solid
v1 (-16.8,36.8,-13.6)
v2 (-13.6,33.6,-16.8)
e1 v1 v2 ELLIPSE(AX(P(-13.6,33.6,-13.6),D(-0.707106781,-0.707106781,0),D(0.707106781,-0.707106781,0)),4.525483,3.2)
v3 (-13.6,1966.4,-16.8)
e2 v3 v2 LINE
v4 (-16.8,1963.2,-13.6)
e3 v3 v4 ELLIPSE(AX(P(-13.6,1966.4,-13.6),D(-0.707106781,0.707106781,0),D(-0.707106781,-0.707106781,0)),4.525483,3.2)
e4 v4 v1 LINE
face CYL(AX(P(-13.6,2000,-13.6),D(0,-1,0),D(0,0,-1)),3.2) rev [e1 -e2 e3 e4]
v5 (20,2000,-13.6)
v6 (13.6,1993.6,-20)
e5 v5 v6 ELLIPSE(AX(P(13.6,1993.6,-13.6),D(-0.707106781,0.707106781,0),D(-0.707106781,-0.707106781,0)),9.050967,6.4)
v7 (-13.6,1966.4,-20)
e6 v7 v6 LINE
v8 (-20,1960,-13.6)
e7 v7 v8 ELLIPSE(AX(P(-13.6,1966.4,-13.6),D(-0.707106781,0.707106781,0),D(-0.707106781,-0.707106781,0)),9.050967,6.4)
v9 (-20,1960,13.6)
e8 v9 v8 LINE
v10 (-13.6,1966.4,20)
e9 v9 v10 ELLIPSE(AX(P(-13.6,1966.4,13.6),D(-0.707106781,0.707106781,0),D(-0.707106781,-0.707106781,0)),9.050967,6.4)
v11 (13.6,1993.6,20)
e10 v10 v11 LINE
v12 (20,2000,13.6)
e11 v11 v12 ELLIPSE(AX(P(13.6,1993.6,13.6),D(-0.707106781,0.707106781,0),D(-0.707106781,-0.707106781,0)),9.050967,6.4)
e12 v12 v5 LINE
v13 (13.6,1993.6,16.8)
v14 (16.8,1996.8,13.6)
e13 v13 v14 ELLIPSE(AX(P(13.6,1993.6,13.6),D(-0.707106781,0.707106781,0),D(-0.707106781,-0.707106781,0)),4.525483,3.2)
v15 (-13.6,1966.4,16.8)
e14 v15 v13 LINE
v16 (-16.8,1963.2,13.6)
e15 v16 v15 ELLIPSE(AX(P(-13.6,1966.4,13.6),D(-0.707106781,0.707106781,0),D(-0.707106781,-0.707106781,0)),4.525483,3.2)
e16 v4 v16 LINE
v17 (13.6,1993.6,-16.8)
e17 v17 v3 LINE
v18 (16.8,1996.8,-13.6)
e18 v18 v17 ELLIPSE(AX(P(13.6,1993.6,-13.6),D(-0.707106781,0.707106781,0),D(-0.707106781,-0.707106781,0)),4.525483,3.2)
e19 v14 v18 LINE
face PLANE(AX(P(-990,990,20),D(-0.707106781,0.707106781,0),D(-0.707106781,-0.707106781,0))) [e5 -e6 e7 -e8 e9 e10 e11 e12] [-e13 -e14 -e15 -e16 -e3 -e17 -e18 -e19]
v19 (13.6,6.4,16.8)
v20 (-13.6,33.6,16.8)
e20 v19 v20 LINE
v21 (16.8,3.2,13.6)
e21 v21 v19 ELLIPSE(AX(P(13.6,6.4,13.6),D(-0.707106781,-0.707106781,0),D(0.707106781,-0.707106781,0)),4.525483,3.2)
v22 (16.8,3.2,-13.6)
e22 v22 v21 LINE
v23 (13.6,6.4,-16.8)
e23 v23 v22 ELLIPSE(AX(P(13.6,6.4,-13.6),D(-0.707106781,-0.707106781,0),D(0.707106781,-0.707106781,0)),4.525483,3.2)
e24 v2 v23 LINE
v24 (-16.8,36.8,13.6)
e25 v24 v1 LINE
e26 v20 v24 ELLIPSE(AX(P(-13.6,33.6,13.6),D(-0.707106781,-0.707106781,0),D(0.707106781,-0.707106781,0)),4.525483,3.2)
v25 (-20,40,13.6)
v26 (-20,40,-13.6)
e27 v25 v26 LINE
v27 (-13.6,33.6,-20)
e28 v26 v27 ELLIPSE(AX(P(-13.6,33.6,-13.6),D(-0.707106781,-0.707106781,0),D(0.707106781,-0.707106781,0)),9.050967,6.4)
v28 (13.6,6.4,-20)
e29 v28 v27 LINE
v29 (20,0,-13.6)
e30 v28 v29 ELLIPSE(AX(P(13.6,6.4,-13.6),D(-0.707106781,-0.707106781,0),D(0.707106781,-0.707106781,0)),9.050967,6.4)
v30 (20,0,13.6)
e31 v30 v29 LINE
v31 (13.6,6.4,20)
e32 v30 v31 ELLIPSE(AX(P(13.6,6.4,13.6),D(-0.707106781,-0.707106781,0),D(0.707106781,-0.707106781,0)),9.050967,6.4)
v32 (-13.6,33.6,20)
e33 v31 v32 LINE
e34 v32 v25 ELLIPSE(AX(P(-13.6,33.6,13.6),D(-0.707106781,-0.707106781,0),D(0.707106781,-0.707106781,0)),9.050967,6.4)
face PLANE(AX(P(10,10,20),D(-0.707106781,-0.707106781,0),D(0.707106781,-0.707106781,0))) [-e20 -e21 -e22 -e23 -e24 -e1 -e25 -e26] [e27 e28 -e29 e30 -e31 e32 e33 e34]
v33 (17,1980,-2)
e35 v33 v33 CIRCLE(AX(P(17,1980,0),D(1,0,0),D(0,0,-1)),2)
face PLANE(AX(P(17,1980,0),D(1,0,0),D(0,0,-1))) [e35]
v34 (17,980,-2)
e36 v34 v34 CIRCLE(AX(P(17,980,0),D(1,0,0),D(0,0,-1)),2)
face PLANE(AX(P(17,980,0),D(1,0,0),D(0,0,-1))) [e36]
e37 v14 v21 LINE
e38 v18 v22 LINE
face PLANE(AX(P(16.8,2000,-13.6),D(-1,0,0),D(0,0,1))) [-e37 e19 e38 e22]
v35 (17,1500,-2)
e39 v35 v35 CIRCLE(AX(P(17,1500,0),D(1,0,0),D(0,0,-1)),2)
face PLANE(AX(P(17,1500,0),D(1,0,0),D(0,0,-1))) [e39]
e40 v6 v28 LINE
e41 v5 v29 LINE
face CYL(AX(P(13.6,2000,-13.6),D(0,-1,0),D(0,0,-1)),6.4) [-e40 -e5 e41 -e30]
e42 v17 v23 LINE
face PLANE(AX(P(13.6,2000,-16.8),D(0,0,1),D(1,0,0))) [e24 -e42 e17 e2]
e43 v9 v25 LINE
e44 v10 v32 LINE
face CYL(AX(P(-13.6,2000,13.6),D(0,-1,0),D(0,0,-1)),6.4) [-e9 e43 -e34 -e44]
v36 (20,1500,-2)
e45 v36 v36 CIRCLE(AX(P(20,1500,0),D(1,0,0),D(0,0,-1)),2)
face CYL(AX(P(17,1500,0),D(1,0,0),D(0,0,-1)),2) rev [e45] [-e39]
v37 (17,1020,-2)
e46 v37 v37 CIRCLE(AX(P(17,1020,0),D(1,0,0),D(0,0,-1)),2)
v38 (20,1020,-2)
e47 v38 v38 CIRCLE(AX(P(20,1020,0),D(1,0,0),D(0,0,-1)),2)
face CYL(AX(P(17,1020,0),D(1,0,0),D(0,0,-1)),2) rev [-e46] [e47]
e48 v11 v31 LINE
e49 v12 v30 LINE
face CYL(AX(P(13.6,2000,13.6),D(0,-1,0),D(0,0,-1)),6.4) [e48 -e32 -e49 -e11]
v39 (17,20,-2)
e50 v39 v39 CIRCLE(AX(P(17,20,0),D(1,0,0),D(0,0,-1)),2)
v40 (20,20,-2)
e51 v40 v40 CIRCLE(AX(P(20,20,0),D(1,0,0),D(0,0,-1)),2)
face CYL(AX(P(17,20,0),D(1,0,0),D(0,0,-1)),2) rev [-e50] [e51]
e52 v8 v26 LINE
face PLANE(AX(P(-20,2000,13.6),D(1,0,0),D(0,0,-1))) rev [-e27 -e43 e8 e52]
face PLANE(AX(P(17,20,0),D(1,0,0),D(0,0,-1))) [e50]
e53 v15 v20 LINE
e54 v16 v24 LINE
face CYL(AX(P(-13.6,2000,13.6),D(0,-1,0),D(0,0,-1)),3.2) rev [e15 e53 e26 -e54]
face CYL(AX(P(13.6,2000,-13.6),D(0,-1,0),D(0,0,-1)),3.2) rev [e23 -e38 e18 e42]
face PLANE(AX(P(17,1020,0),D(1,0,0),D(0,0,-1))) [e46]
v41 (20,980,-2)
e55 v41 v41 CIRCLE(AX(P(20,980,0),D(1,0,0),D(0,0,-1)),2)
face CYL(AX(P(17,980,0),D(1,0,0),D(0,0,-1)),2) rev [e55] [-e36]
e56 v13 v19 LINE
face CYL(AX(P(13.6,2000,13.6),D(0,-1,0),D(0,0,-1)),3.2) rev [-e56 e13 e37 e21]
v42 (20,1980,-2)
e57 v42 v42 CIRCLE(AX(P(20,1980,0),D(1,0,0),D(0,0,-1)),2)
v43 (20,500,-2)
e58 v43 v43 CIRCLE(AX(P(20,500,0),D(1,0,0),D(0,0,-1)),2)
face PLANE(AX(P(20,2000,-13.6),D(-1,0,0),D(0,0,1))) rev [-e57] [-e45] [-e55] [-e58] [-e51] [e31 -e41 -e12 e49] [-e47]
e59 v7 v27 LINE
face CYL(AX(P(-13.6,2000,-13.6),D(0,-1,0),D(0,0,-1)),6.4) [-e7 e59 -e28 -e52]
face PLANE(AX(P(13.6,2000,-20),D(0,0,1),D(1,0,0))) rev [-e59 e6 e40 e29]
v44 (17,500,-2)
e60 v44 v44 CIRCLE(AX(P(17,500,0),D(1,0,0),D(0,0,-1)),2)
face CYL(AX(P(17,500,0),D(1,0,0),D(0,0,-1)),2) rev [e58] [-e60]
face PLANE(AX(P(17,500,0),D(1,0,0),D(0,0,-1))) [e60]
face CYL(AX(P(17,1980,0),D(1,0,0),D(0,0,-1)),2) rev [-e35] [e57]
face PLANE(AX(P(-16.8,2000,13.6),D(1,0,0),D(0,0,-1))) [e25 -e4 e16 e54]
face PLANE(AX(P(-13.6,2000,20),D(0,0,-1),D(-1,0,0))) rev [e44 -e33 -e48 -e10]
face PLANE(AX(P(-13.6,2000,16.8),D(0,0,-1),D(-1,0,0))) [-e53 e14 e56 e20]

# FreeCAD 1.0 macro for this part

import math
import FreeCAD as App
import Part
import Sketcher

V = App.Vector

doc = App.newDocument("Part")
body = doc.addObject("PartDesign::Body", "Body")

sketch1 = body.newObject("Sketcher::SketchObject", "Sketch")
sketch1.AttachmentSupport = (doc.getObject("XZ_Plane"), [""])
sketch1.MapMode = "FlatFace"
sketch1.addGeometry(Part.LineSegment(V(13.6, -20, 0), V(-13.6, -20, 0)), False)
sketch1.addGeometry(Part.ArcOfCircle(Part.Circle(V(-13.6, -13.6, 0), V(0, 0, 1), 6.4), math.radians(180), math.radians(270)), False)
sketch1.addGeometry(Part.LineSegment(V(-20, -13.6, 0), V(-20, 13.6, 0)), False)
sketch1.addGeometry(Part.ArcOfCircle(Part.Circle(V(-13.6, 13.6, 0), V(0, 0, 1), 6.4), math.radians(90), math.radians(180)), False)
sketch1.addGeometry(Part.LineSegment(V(-13.6, 20, 0), V(13.6, 20, 0)), False)
sketch1.addGeometry(Part.ArcOfCircle(Part.Circle(V(13.6, 13.6, 0), V(0, 0, 1), 6.4), math.radians(0), math.radians(90)), False)
sketch1.addGeometry(Part.LineSegment(V(20, 13.6, 0), V(20, -13.6, 0)), False)
sketch1.addGeometry(Part.ArcOfCircle(Part.Circle(V(13.6, -13.6, 0), V(0, 0, 1), 6.4), math.radians(-90), math.radians(0)), False)
sketch1.addGeometry(Part.LineSegment(V(-13.6, -16.8, 0), V(13.6, -16.8, 0)), False)
sketch1.addGeometry(Part.ArcOfCircle(Part.Circle(V(13.6, -13.6, 0), V(0, 0, 1), 3.2), math.radians(-90), math.radians(0)), False)
sketch1.addGeometry(Part.LineSegment(V(16.8, -13.6, 0), V(16.8, 13.6, 0)), False)
sketch1.addGeometry(Part.ArcOfCircle(Part.Circle(V(13.6, 13.6, 0), V(0, 0, 1), 3.2), math.radians(0), math.radians(90)), False)
sketch1.addGeometry(Part.LineSegment(V(13.6, 16.8, 0), V(-13.6, 16.8, 0)), False)
sketch1.addGeometry(Part.ArcOfCircle(Part.Circle(V(-13.6, 13.6, 0), V(0, 0, 1), 3.2), math.radians(90), math.radians(180)), False)
sketch1.addGeometry(Part.LineSegment(V(-16.8, 13.6, 0), V(-16.8, -13.6, 0)), False)
sketch1.addGeometry(Part.ArcOfCircle(Part.Circle(V(-13.6, -13.6, 0), V(0, 0, 1), 3.2), math.radians(180), math.radians(270)), False)
sketch1.addConstraint(Sketcher.Constraint("Tangent", 0, 2, 1, 2))
sketch1.addConstraint(Sketcher.Constraint("Tangent", 1, 1, 2, 1))
sketch1.addConstraint(Sketcher.Constraint("Tangent", 2, 2, 3, 2))
sketch1.addConstraint(Sketcher.Constraint("Tangent", 3, 1, 4, 1))
sketch1.addConstraint(Sketcher.Constraint("Tangent", 4, 2, 5, 2))
sketch1.addConstraint(Sketcher.Constraint("Tangent", 5, 1, 6, 1))
sketch1.addConstraint(Sketcher.Constraint("Tangent", 6, 2, 7, 2))
sketch1.addConstraint(Sketcher.Constraint("Tangent", 7, 1, 0, 1))
sketch1.addConstraint(Sketcher.Constraint("Tangent", 8, 2, 9, 1))
sketch1.addConstraint(Sketcher.Constraint("Tangent", 9, 2, 10, 1))
sketch1.addConstraint(Sketcher.Constraint("Tangent", 10, 2, 11, 1))
sketch1.addConstraint(Sketcher.Constraint("Tangent", 11, 2, 12, 1))
sketch1.addConstraint(Sketcher.Constraint("Tangent", 12, 2, 13, 1))
sketch1.addConstraint(Sketcher.Constraint("Tangent", 13, 2, 14, 1))
sketch1.addConstraint(Sketcher.Constraint("Tangent", 14, 2, 15, 1))
sketch1.addConstraint(Sketcher.Constraint("Tangent", 15, 2, 8, 1))
sketch1.addConstraint(Sketcher.Constraint("Horizontal", 0))
sketch1.addConstraint(Sketcher.Constraint("Vertical", 2))
sketch1.addConstraint(Sketcher.Constraint("Horizontal", 4))
sketch1.addConstraint(Sketcher.Constraint("Vertical", 6))
sketch1.addConstraint(Sketcher.Constraint("Horizontal", 8))
sketch1.addConstraint(Sketcher.Constraint("Vertical", 10))
sketch1.addConstraint(Sketcher.Constraint("Horizontal", 12))
sketch1.addConstraint(Sketcher.Constraint("Vertical", 14))
sketch1.addConstraint(Sketcher.Constraint("Coincident", 9, 3, 7, 3))
sketch1.addConstraint(Sketcher.Constraint("Coincident", 11, 3, 5, 3))
sketch1.addConstraint(Sketcher.Constraint("Coincident", 13, 3, 3, 3))
sketch1.addConstraint(Sketcher.Constraint("Equal", 1, 3))
sketch1.addConstraint(Sketcher.Constraint("Equal", 3, 5))
sketch1.addConstraint(Sketcher.Constraint("Equal", 5, 7))
sketch1.addConstraint(Sketcher.Constraint("Equal", 13, 15))
sketch1.addConstraint(Sketcher.Constraint("Symmetric", 1, 3, 5, 3, -1, 1))
sketch1.addConstraint(Sketcher.Constraint("Equal", 12, 2))
sketch1.addConstraint(Sketcher.Constraint("Radius", 1, 6.4))
sketch1.addConstraint(Sketcher.Constraint("Radius", 9, 3.2))
sketch1.addConstraint(Sketcher.Constraint("DistanceX", 0, 2, 0, 1, 27.2))
pad1 = body.newObject("PartDesign::Pad", "Pad")
pad1.Profile = sketch1
pad1.Length = 2000
pad1.Reversed = True

sketch2 = body.newObject("Sketcher::SketchObject", "Sketch001")
sketch2.AttachmentSupport = (doc.getObject("XY_Plane"), [""])
sketch2.MapMode = "FlatFace"
sketch2.AttachmentOffset = App.Placement(V(0, 0, -20), App.Rotation())
sketch2.addGeometry(Part.LineSegment(V(20, 2000, 0), V(-20, 1960, 0)), False)
sketch2.addGeometry(Part.LineSegment(V(-20, 1960, 0), V(-20, 2000, 0)), False)
sketch2.addGeometry(Part.LineSegment(V(-20, 2000, 0), V(20, 2000, 0)), False)
sketch2.addGeometry(Part.LineSegment(V(-20, 40, 0), V(20, 0, 0)), False)
sketch2.addGeometry(Part.LineSegment(V(20, 0, 0), V(-20, 0, 0)), False)
sketch2.addGeometry(Part.LineSegment(V(-20, 0, 0), V(-20, 40, 0)), False)
sketch2.addConstraint(Sketcher.Constraint("Coincident", 0, 2, 1, 1))
sketch2.addConstraint(Sketcher.Constraint("Coincident", 1, 2, 2, 1))
sketch2.addConstraint(Sketcher.Constraint("Coincident", 2, 2, 0, 1))
sketch2.addConstraint(Sketcher.Constraint("Coincident", 3, 2, 4, 1))
sketch2.addConstraint(Sketcher.Constraint("Coincident", 4, 2, 5, 1))
sketch2.addConstraint(Sketcher.Constraint("Coincident", 5, 2, 3, 1))
sketch2.addConstraint(Sketcher.Constraint("Vertical", 1))
sketch2.addConstraint(Sketcher.Constraint("Horizontal", 2))
sketch2.addConstraint(Sketcher.Constraint("Horizontal", 4))
sketch2.addConstraint(Sketcher.Constraint("Vertical", 5))
sketch2.addConstraint(Sketcher.Constraint("Symmetric", 3, 2, 4, 2, -1, 1))
sketch2.addConstraint(Sketcher.Constraint("Perpendicular", 0, 3))
sketch2.addConstraint(Sketcher.Constraint("Vertical", 2, 2, 3, 2))
sketch2.addConstraint(Sketcher.Constraint("Vertical", 1, 2, 4, 2))
sketch2.addConstraint(Sketcher.Constraint("Equal", 4, 1))
sketch2.addConstraint(Sketcher.Constraint("DistanceX", 2, 1, 2, 2, 40.0))
sketch2.addConstraint(Sketcher.Constraint("DistanceY", -1, 1, 0, 2, 1960.0))
pocket1 = body.newObject("PartDesign::Pocket", "Pocket")
pocket1.Profile = sketch2
pocket1.Type = "ThroughAll"
pocket1.Reversed = True

sketch3 = body.newObject("Sketcher::SketchObject", "Sketch002")
sketch3.AttachmentSupport = (doc.getObject("YZ_Plane"), [""])
sketch3.MapMode = "FlatFace"
sketch3.AttachmentOffset = App.Placement(V(0, 0, 20), App.Rotation())
sketch3.addGeometry(Part.Circle(V(1980, 0, 0), V(0, 0, 1), 2), False)
sketch3.addGeometry(Part.Circle(V(20, 0, 0), V(0, 0, 1), 2), False)
sketch3.addGeometry(Part.Circle(V(1020, 0, 0), V(0, 0, 1), 2), False)
sketch3.addGeometry(Part.Circle(V(980, 0, 0), V(0, 0, 1), 2), False)
sketch3.addGeometry(Part.Circle(V(500, 0, 0), V(0, 0, 1), 2), False)
sketch3.addGeometry(Part.Circle(V(1500, 0, 0), V(0, 0, 1), 2), False)
sketch3.addConstraint(Sketcher.Constraint("Equal", 0, 1))
sketch3.addConstraint(Sketcher.Constraint("Equal", 1, 2))
sketch3.addConstraint(Sketcher.Constraint("Equal", 2, 3))
sketch3.addConstraint(Sketcher.Constraint("Equal", 3, 4))
sketch3.addConstraint(Sketcher.Constraint("Equal", 4, 5))
sketch3.addConstraint(Sketcher.Constraint("PointOnObject", 0, 3, -1))
sketch3.addConstraint(Sketcher.Constraint("PointOnObject", 1, 3, -1))
sketch3.addConstraint(Sketcher.Constraint("PointOnObject", 2, 3, -1))
sketch3.addConstraint(Sketcher.Constraint("PointOnObject", 3, 3, -1))
sketch3.addConstraint(Sketcher.Constraint("PointOnObject", 4, 3, -1))
sketch3.addConstraint(Sketcher.Constraint("PointOnObject", 5, 3, -1))
sketch3.addConstraint(Sketcher.Constraint("Diameter", 0, 4.0))
sketch3.addConstraint(Sketcher.Constraint("DistanceX", -1, 1, 0, 3, 1980.0))
sketch3.addConstraint(Sketcher.Constraint("DistanceX", -1, 1, 1, 3, 20.0))
sketch3.addConstraint(Sketcher.Constraint("DistanceX", -1, 1, 2, 3, 1020.0))
sketch3.addConstraint(Sketcher.Constraint("DistanceX", -1, 1, 3, 3, 980.0))
sketch3.addConstraint(Sketcher.Constraint("DistanceX", -1, 1, 4, 3, 500.0))
sketch3.addConstraint(Sketcher.Constraint("DistanceX", -1, 1, 5, 3, 1500.0))
pocket2 = body.newObject("PartDesign::Pocket", "Pocket001")
pocket2.Profile = sketch3
pocket2.Length = 3

doc.recompute()
